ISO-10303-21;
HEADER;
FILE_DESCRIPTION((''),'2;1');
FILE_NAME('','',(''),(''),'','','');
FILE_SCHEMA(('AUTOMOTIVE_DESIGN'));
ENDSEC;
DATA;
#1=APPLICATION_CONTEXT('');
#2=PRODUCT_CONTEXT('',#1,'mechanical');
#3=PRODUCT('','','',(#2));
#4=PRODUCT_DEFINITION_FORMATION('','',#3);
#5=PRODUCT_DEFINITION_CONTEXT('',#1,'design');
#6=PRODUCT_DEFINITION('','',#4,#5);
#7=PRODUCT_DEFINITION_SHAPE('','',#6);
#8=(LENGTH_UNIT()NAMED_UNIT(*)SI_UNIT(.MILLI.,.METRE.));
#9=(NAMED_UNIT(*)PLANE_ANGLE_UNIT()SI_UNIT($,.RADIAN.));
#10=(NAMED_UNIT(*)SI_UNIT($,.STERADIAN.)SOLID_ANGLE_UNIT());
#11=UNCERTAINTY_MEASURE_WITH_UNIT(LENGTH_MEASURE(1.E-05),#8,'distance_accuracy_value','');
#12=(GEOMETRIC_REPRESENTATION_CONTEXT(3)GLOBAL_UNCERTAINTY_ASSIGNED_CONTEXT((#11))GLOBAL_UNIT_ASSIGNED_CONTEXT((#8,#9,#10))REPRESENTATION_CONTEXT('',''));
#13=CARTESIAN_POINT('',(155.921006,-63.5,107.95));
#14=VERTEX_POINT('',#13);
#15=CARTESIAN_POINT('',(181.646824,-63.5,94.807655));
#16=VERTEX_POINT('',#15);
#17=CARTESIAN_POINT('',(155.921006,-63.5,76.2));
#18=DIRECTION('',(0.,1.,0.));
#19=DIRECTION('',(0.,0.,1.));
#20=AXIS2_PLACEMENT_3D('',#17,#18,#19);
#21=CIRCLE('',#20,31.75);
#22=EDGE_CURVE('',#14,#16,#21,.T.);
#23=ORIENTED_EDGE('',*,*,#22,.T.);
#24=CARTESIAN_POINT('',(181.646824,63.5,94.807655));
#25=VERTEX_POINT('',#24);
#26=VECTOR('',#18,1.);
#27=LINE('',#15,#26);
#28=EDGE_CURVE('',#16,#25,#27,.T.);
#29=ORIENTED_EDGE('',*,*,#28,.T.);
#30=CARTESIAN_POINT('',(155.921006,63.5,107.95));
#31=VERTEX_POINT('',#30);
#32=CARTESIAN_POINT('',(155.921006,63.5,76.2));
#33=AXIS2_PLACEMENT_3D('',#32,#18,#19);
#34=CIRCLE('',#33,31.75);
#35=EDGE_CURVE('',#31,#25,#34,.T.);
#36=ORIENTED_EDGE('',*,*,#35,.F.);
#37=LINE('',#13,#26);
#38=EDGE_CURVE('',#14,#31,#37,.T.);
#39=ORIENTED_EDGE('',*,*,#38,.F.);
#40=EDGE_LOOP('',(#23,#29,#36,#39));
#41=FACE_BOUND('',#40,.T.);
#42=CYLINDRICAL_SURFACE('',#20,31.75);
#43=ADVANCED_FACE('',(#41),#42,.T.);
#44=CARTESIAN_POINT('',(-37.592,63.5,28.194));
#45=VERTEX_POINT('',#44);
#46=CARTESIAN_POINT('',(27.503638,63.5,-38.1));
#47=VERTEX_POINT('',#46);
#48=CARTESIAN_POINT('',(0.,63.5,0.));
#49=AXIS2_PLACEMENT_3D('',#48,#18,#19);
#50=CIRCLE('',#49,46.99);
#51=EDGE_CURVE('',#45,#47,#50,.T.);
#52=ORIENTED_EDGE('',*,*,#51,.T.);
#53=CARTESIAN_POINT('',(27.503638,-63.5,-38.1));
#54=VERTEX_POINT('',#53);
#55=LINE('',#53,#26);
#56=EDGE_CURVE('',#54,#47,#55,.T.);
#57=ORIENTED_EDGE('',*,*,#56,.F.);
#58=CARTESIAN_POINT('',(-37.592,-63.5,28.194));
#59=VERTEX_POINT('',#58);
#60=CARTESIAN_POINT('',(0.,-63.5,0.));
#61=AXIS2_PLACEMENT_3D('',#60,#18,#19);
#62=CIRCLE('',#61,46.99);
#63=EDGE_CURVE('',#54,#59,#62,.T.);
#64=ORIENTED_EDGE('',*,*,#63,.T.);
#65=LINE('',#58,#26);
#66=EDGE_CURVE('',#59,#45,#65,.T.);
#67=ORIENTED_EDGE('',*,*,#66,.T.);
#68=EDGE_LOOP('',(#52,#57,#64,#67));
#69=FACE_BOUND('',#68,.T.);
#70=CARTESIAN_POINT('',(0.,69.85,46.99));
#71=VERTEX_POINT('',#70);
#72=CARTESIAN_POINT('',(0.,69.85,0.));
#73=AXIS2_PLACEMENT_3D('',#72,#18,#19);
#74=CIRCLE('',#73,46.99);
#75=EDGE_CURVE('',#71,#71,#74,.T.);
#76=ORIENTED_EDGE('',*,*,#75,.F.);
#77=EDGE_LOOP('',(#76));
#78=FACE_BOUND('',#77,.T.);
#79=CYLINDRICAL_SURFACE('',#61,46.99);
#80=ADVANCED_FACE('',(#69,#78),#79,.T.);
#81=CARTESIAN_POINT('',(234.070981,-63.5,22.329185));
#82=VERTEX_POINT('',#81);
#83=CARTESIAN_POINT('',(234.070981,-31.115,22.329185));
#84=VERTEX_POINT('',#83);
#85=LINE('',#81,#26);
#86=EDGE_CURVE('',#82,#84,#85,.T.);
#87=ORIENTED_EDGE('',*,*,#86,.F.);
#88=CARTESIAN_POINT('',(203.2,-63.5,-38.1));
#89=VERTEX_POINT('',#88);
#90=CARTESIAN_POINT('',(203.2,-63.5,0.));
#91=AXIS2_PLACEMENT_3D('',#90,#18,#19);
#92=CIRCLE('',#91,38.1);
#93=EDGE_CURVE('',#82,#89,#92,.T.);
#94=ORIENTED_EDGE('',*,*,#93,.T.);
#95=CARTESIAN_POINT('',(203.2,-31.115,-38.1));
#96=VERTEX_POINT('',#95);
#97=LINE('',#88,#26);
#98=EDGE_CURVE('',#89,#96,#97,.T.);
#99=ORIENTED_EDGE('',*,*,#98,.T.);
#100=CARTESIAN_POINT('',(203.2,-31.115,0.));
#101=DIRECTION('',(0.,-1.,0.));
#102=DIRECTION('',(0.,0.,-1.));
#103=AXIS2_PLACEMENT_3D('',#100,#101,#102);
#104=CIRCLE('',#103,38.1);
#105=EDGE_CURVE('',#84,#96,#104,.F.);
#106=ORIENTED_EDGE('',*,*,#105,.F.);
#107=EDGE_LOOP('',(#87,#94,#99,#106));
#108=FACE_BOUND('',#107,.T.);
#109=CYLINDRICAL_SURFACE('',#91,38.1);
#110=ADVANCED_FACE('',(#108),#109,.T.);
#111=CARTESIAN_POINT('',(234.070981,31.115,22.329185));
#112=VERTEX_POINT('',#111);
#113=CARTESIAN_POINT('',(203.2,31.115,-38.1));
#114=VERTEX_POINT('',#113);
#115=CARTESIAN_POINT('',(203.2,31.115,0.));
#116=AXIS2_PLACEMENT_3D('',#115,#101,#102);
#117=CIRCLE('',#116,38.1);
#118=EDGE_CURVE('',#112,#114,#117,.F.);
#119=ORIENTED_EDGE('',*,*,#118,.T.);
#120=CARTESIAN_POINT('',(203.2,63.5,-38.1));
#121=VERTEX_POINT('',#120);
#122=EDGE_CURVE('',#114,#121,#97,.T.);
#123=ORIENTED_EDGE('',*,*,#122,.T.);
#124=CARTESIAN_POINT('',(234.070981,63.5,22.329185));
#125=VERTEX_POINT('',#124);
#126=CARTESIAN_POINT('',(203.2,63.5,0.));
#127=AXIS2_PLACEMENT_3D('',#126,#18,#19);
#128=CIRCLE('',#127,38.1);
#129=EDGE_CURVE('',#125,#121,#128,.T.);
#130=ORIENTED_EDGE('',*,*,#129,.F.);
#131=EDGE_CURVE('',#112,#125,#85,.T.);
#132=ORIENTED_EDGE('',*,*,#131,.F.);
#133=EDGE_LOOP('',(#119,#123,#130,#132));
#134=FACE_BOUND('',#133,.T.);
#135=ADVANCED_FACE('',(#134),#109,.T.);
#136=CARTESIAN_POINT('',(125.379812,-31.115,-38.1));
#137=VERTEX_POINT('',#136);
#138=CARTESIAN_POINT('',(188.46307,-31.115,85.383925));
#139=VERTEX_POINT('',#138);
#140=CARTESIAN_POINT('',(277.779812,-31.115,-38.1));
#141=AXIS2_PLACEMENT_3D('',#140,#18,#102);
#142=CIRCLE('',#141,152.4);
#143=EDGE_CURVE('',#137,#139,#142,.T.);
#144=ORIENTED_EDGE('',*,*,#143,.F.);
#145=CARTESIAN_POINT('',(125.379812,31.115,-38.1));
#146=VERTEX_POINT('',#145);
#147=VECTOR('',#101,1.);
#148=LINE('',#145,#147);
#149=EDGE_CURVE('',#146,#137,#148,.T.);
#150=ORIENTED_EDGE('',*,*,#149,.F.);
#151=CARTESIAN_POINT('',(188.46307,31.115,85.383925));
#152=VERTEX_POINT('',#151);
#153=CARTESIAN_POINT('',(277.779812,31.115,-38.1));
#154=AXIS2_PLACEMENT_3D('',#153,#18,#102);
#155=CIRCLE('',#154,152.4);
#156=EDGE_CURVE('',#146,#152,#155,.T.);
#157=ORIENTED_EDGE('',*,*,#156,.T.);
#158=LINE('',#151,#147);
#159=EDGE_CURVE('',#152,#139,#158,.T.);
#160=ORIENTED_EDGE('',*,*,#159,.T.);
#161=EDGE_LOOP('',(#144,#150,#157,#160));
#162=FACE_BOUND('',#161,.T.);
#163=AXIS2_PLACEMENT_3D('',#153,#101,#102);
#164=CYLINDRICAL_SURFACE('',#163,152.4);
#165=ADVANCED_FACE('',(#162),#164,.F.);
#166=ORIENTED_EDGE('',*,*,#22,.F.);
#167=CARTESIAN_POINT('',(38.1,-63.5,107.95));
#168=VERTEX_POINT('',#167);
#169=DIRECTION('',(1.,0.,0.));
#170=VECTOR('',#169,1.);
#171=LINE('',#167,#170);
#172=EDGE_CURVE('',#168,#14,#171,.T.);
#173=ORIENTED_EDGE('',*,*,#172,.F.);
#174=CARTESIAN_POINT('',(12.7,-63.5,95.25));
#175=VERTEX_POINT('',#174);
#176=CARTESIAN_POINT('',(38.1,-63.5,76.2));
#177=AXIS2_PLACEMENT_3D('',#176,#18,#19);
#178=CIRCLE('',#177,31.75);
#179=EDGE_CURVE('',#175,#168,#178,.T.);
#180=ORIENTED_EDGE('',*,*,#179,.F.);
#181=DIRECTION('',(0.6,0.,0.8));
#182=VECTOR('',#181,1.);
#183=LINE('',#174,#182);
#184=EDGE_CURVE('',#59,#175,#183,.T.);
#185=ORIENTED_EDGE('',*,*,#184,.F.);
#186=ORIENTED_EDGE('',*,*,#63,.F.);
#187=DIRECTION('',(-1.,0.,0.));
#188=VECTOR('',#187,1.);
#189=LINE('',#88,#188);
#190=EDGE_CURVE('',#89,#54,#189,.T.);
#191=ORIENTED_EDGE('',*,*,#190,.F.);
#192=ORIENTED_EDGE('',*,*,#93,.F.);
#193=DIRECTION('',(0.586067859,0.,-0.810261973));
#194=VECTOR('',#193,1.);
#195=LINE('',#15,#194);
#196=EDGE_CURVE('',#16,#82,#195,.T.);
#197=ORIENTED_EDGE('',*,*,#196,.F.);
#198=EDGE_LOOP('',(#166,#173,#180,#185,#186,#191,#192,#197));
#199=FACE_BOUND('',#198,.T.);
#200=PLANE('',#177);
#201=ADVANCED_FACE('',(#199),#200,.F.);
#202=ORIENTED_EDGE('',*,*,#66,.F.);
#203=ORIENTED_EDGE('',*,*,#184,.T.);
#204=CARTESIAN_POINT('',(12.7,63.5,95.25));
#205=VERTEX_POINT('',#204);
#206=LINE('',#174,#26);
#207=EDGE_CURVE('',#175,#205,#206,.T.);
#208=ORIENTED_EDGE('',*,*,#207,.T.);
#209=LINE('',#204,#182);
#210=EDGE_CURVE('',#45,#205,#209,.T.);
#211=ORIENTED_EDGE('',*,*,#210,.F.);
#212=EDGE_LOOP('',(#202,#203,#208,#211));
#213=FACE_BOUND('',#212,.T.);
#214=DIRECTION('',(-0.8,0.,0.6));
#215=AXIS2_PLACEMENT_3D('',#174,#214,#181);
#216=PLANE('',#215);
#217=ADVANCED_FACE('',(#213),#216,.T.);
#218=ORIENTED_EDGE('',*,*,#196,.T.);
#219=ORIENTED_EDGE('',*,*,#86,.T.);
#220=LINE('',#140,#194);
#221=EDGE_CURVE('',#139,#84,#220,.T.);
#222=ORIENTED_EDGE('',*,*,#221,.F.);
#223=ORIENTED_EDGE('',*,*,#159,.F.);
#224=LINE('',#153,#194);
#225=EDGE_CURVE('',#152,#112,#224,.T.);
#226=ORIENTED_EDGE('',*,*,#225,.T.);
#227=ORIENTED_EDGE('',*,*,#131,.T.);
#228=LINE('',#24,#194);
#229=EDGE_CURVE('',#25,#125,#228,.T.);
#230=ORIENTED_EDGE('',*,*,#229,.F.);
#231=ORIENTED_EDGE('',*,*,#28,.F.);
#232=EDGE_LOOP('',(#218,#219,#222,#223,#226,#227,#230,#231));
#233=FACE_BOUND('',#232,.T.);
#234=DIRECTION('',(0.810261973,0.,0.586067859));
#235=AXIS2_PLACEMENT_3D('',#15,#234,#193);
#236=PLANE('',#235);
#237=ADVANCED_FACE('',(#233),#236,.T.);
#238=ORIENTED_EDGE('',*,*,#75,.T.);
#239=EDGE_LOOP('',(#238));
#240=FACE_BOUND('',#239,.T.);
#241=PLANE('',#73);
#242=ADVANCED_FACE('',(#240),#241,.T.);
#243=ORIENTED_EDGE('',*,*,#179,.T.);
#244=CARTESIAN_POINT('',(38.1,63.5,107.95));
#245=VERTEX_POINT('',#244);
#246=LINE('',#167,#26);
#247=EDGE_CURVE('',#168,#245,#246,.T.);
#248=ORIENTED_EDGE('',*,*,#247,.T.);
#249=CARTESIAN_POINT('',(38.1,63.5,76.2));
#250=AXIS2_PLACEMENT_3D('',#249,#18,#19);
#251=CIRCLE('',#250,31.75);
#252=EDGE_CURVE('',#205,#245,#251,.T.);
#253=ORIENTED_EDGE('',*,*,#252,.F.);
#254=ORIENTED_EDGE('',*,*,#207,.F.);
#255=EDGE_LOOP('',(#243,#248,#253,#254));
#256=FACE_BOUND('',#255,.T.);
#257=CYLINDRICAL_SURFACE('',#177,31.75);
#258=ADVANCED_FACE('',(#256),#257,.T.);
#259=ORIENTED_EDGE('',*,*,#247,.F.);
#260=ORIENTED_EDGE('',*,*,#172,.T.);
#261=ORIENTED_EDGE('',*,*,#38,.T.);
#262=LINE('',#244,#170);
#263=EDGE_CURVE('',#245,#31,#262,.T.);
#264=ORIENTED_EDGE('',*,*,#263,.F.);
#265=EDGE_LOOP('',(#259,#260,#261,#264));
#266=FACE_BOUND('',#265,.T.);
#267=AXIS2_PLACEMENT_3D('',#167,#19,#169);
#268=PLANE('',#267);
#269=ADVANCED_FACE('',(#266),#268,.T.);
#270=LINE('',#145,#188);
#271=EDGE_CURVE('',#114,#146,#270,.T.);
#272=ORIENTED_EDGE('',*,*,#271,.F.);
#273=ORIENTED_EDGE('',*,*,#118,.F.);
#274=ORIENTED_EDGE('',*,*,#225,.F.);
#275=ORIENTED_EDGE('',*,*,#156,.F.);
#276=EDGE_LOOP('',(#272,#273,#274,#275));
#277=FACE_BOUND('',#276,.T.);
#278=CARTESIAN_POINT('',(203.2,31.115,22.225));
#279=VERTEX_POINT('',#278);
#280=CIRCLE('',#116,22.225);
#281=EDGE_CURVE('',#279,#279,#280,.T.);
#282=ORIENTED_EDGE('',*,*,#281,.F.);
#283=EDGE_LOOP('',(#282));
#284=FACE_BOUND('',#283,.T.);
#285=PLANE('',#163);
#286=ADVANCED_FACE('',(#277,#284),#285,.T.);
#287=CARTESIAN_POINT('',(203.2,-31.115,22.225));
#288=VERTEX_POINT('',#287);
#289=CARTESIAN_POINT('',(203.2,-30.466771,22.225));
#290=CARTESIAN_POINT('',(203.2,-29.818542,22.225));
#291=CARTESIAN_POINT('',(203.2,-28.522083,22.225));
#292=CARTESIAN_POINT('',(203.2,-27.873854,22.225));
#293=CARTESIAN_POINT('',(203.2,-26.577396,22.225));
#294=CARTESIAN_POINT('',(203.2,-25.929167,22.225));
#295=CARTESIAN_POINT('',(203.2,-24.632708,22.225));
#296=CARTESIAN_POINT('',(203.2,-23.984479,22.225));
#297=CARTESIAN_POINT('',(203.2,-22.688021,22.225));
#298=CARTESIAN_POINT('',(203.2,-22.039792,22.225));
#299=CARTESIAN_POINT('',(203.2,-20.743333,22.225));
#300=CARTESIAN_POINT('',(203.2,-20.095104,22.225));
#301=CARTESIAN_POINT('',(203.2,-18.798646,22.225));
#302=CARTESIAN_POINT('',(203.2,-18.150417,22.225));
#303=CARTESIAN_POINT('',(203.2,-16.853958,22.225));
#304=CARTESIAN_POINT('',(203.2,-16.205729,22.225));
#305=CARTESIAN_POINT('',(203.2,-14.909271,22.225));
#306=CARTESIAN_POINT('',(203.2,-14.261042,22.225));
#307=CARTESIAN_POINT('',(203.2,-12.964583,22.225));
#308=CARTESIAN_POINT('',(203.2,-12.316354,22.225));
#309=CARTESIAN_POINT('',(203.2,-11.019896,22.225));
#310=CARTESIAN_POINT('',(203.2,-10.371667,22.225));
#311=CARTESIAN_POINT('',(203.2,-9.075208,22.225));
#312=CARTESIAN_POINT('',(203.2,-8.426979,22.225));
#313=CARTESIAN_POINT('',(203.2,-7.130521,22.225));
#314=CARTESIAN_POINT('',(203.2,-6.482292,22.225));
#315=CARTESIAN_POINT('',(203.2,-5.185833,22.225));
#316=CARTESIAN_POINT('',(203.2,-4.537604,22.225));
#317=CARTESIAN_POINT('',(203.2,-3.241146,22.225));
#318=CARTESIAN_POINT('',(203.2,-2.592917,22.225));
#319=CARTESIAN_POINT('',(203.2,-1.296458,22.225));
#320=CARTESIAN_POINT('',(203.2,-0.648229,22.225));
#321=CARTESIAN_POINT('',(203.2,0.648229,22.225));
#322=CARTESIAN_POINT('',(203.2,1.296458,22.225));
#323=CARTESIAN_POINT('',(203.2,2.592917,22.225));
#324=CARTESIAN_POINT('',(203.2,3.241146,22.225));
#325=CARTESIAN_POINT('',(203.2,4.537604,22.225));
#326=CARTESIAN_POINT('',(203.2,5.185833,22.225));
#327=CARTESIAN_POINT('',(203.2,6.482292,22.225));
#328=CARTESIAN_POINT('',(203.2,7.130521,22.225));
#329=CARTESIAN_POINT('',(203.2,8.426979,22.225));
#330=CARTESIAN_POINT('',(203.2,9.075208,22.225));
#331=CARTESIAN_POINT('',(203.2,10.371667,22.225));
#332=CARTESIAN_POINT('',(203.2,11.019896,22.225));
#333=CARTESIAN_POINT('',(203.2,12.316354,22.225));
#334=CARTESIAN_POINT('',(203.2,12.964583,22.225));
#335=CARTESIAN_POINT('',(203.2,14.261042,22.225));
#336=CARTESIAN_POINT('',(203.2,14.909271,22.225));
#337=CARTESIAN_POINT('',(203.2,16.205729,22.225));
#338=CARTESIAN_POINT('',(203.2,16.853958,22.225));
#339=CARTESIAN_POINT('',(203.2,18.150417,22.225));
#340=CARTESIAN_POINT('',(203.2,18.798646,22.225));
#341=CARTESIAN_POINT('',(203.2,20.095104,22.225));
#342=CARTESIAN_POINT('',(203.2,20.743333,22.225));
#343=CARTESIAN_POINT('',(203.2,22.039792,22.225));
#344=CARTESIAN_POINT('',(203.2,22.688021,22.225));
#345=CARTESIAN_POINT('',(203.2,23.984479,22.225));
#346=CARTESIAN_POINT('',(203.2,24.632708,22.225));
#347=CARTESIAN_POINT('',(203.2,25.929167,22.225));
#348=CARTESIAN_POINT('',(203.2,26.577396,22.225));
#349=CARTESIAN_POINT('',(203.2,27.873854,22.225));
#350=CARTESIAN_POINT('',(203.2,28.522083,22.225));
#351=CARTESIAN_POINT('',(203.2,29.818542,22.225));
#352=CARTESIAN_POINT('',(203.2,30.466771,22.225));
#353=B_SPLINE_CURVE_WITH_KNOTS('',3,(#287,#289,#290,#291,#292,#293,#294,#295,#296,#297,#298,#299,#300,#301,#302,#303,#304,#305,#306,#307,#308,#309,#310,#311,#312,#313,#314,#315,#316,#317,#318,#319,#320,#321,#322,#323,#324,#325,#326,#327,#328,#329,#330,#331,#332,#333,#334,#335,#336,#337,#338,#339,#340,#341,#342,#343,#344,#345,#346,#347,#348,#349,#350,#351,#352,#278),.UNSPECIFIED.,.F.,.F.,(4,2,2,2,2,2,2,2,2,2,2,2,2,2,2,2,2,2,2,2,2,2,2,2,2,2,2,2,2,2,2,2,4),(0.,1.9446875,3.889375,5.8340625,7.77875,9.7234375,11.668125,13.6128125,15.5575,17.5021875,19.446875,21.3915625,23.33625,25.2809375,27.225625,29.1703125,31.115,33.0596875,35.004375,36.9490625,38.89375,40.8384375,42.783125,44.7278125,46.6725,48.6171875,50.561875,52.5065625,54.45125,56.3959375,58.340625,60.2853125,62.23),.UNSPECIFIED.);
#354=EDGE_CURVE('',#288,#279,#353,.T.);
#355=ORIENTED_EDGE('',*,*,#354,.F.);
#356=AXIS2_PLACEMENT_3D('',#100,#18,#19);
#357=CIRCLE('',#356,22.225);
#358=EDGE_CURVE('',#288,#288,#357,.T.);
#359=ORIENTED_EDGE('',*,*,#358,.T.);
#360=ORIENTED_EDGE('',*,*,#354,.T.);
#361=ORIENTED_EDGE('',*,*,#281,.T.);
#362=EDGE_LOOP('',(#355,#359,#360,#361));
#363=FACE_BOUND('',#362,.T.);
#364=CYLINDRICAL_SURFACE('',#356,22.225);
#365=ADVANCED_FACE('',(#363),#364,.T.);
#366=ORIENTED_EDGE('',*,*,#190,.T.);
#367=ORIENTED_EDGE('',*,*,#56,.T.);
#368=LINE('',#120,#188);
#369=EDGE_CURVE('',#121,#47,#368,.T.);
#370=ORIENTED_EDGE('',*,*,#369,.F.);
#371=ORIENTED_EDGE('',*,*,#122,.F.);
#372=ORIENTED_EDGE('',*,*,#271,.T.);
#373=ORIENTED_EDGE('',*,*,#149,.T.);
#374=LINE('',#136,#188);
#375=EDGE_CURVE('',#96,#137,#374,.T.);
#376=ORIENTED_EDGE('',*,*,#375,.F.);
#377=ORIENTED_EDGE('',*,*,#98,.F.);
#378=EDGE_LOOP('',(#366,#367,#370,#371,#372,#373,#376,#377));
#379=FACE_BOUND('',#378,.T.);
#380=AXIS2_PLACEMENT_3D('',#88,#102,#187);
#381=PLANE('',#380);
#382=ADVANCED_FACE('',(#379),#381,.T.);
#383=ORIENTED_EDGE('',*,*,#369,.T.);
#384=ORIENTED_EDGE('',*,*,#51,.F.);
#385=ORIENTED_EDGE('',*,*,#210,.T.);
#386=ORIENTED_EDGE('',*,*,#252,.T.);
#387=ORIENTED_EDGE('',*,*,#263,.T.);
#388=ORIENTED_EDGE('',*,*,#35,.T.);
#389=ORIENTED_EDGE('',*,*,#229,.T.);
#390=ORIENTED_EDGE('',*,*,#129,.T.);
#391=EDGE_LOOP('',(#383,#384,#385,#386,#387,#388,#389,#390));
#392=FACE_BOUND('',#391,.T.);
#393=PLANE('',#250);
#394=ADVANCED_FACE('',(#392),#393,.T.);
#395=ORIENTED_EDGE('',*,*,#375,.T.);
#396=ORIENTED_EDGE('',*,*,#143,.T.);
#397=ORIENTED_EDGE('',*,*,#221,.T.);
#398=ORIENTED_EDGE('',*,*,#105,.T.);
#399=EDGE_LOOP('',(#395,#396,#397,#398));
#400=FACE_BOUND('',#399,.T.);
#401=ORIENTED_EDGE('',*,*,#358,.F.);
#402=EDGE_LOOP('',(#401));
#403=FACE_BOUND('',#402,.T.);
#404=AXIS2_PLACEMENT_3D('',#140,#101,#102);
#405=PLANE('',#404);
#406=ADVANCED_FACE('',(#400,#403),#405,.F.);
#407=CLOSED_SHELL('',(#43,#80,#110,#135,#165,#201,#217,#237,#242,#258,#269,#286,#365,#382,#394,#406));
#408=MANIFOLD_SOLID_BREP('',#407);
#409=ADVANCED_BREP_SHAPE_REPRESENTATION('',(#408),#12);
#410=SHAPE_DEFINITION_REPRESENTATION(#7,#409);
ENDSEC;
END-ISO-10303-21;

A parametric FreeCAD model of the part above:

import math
import FreeCAD as App
import Part
import Sketcher
from FreeCAD import Vector
Q = App.Units.Quantity

doc = App.newDocument("Part")
body = doc.addObject("PartDesign::Body", "Body")

# Sketch on XZ plane
sketch1 = body.newObject("Sketcher::SketchObject", "Sketch")
sketch1.AttachmentSupport = (doc.getObject("XZ_Plane"), [""])
sketch1.MapMode = "FlatFace"
sketch1.addGeometry(Part.LineSegment(Vector(38, 108, 0), Vector(156, 108, 0)), False)
sketch1.addGeometry(Part.ArcOfCircle(Part.Circle(Vector(156, 76, 0), Vector(0, 0, 1), 32), math.radians(36), math.radians(90)), False)
sketch1.addGeometry(Part.LineSegment(Vector(182, 95, 0), Vector(234, 22, 0)), False)
sketch1.addGeometry(Part.ArcOfCircle(Part.Circle(Vector(203, 0, 0), Vector(0, 0, 1), 38), math.radians(-90), math.radians(36)), False)
sketch1.addGeometry(Part.LineSegment(Vector(203, -38, 0), Vector(28, -38, 0)), False)
sketch1.addGeometry(Part.ArcOfCircle(Part.Circle(Vector(0, 0, 0), Vector(0, 0, 1), 47), math.radians(143), math.radians(306)), False)
sketch1.addGeometry(Part.LineSegment(Vector(-38, 28, 0), Vector(13, 95, 0)), False)
sketch1.addGeometry(Part.ArcOfCircle(Part.Circle(Vector(38, 76, 0), Vector(0, 0, 1), 32), math.radians(90), math.radians(143)), False)
sketch1.addConstraint(Sketcher.Constraint("Tangent", 0, 2, 1, 2))
sketch1.addConstraint(Sketcher.Constraint("Tangent", 1, 1, 2, 1))
sketch1.addConstraint(Sketcher.Constraint("Tangent", 2, 2, 3, 2))
sketch1.addConstraint(Sketcher.Constraint("Tangent", 3, 1, 4, 1))
sketch1.addConstraint(Sketcher.Constraint("Coincident", 4, 2, 5, 2))
sketch1.addConstraint(Sketcher.Constraint("Tangent", 5, 1, 6, 1))
sketch1.addConstraint(Sketcher.Constraint("Tangent", 6, 2, 7, 2))
sketch1.addConstraint(Sketcher.Constraint("Tangent", 7, 1, 0, 1))
sketch1.addConstraint(Sketcher.Constraint("Horizontal", 0))
sketch1.addConstraint(Sketcher.Constraint("Horizontal", 4))
sketch1.addConstraint(Sketcher.Constraint("Coincident", 5, 3, -1, 1))
sketch1.addConstraint(Sketcher.Constraint("Equal", 1, 7))
sketch1.addConstraint(Sketcher.Constraint("PointOnObject", 3, 3, -1))
sketch1.addConstraint(Sketcher.Constraint("Radius", 3, Q("1.5 in")))
sketch1.addConstraint(Sketcher.Constraint("Radius", 1, Q("1.25 in")))
sketch1.addConstraint(Sketcher.Constraint("Radius", 5, Q("1.85 in")))
sketch1.addConstraint(Sketcher.Constraint("DistanceY", -1, 1, 1, 3, Q("3 in")))
sketch1.addConstraint(Sketcher.Constraint("DistanceX", -1, 1, 3, 3, Q("8 in")))
sketch1.addConstraint(Sketcher.Constraint("DistanceX", 6, 2, 7, 3, Q("1 in")))
sketch1.addConstraint(Sketcher.Constraint("Distance", 2, Q("89.450661 mm")))
pad1 = body.newObject("PartDesign::Pad", "Pad")
pad1.Profile = sketch1
pad1.Type = "TwoLengths"
pad1.Length = Q("2.5 in")
pad1.Length2 = Q("2.5 in")
pad1.Reversed = True

# Sketch on XZ plane
sketch2 = body.newObject("Sketcher::SketchObject", "Sketch001")
sketch2.AttachmentSupport = (doc.getObject("XZ_Plane"), [""])
sketch2.MapMode = "FlatFace"
sketch2.AttachmentOffset = App.Placement(Vector(0, 0, -2.5 * 25.4), App.Rotation())
sketch2.addGeometry(Part.Circle(Vector(0, 0, 0), Vector(0, 0, 1), 47), False)
sketch2.addConstraint(Sketcher.Constraint("Coincident", 0, 3, -1, 1))
sketch2.addConstraint(Sketcher.Constraint("Diameter", 0, Q("3.7 in")))
pad2 = body.newObject("PartDesign::Pad", "Pad001")
pad2.Profile = sketch2
pad2.Length = Q("0.25 in")
pad2.Reversed = True

# Sketch on XZ plane
sketch3 = body.newObject("Sketcher::SketchObject", "Sketch002")
sketch3.AttachmentSupport = (doc.getObject("XZ_Plane"), [""])
sketch3.MapMode = "FlatFace"
sketch3.addGeometry(Part.LineSegment(Vector(278, -38, 0), Vector(125, -38, 0)), False)
sketch3.addGeometry(Part.ArcOfCircle(Part.Circle(Vector(278, -38, 0), Vector(0, 0, 1), 152), math.radians(126), math.radians(180)), False)
sketch3.addGeometry(Part.LineSegment(Vector(188, 85, 0), Vector(278, -38, 0)), False)
sketch3.addConstraint(Sketcher.Constraint("Coincident", 0, 2, 1, 2))
sketch3.addConstraint(Sketcher.Constraint("Coincident", 1, 1, 2, 1))
sketch3.addConstraint(Sketcher.Constraint("Coincident", 2, 2, 0, 1))
sketch3.addConstraint(Sketcher.Constraint("Horizontal", 0))
sketch3.addConstraint(Sketcher.Constraint("Coincident", 2, 2, 1, 3))
sketch3.addConstraint(Sketcher.Constraint("Radius", 1, Q("6 in")))
sketch3.addConstraint(Sketcher.Constraint("DistanceY", 1, 3, -1, 1, Q("1.5 in")))
sketch3.addConstraint(Sketcher.Constraint("DistanceX", -1, 1, 1, 3, Q("277.779812 mm")))
sketch3.addConstraint(Sketcher.Constraint("DistanceX", -1, 1, 1, 1, Q("188.46307 mm")))
pocket1 = body.newObject("PartDesign::Pocket", "Pocket")
pocket1.Profile = sketch3
pocket1.Type = "TwoLengths"
pocket1.Length = Q("1.225 in")
pocket1.Length2 = Q("1.225 in")

# Sketch on XZ plane
sketch4 = body.newObject("Sketcher::SketchObject", "Sketch003")
sketch4.AttachmentSupport = (doc.getObject("XZ_Plane"), [""])
sketch4.MapMode = "FlatFace"
sketch4.addGeometry(Part.Circle(Vector(203, 0, 0), Vector(0, 0, 1), 22), False)
sketch4.addConstraint(Sketcher.Constraint("PointOnObject", 0, 3, -1))
sketch4.addConstraint(Sketcher.Constraint("Diameter", 0, Q("1.75 in")))
sketch4.addConstraint(Sketcher.Constraint("DistanceX", -1, 1, 0, 3, Q("8 in")))
pad3 = body.newObject("PartDesign::Pad", "Pad002")
pad3.Profile = sketch4
pad3.Type = "TwoLengths"
pad3.Length = Q("1.225 in")
pad3.Length2 = Q("1.225 in")
pad3.Reversed = True

doc.recompute()
